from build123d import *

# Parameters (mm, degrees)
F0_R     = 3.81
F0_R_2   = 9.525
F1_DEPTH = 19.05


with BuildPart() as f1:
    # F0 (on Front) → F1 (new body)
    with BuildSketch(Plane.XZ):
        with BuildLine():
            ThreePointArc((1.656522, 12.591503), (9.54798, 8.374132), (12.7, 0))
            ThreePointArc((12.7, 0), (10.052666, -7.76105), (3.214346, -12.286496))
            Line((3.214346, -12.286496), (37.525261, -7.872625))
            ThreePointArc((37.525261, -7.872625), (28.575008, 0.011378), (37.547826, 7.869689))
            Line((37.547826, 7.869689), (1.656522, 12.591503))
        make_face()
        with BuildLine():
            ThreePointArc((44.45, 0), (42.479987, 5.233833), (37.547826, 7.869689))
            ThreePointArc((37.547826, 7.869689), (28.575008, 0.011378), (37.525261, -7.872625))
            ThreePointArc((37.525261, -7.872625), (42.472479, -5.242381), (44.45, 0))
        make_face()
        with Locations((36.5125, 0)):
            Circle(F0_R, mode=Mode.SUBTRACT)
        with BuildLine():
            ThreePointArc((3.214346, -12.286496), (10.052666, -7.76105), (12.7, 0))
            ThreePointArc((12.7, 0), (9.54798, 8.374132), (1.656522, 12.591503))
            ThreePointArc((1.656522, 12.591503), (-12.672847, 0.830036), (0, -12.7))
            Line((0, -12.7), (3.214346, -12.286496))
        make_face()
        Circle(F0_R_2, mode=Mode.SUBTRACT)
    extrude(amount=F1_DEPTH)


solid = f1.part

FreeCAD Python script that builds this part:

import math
import FreeCAD as App
import Part
import Sketcher

V = App.Vector
Q = App.Units.Quantity

doc = App.newDocument("Part")
body = doc.addObject("PartDesign::Body", "Body")

sketch1 = body.newObject("Sketcher::SketchObject", "Sketch")
sketch1.AttachmentSupport = (doc.getObject("XZ_Plane"), [""])
sketch1.MapMode = "FlatFace"
sketch1.addGeometry(Part.LineSegment(V(37.547826, 7.869689, 0), V(1.656522, 12.591503, 0)), False)
sketch1.addGeometry(Part.ArcOfCircle(Part.Circle(V(0, 0, 0), V(0, 0, 1), 12.7), math.radians(82.505281), math.radians(270.000001)), False)
sketch1.addGeometry(Part.LineSegment(V(0, -12.7, 0), V(3.214346, -12.286496, 0)), False)
sketch1.addGeometry(Part.LineSegment(V(3.214346, -12.286496, 0), V(37.525261, -7.872625, 0)), False)
sketch1.addGeometry(Part.ArcOfCircle(Part.Circle(V(36.5125, 0, 0), V(0, 0, 1), 7.9375), math.radians(-82.669538), math.radians(0.000001)), False)
sketch1.addGeometry(Part.ArcOfCircle(Part.Circle(V(36.512501, 0.000001, 0), V(0, 0, 1), 7.937499), math.radians(-0.000004), math.radians(82.505288)), False)
sketch1.addGeometry(Part.Circle(V(0, 0, 0), V(0, 0, 1), 9.525), False)
sketch1.addGeometry(Part.Circle(V(36.5125, 0, 0), V(0, 0, 1), 3.81), False)
sketch1.addConstraint(Sketcher.Constraint("Tangent", 0, 2, 1, 1))
sketch1.addConstraint(Sketcher.Constraint("Coincident", 1, 2, 2, 1))
sketch1.addConstraint(Sketcher.Constraint("Coincident", 2, 2, 3, 1))
sketch1.addConstraint(Sketcher.Constraint("Tangent", 3, 2, 4, 1))
sketch1.addConstraint(Sketcher.Constraint("Tangent", 4, 2, 5, 1))
sketch1.addConstraint(Sketcher.Constraint("Tangent", 5, 2, 0, 1))
sketch1.addConstraint(Sketcher.Constraint("Coincident", 1, 3, -1, 1))
sketch1.addConstraint(Sketcher.Constraint("Coincident", 6, 3, -1, 1))
sketch1.addConstraint(Sketcher.Constraint("Coincident", 7, 3, 4, 3))
sketch1.addConstraint(Sketcher.Constraint("Equal", 4, 5))
sketch1.addConstraint(Sketcher.Constraint("PointOnObject", 4, 3, -1))
sketch1.addConstraint(Sketcher.Constraint("PointOnObject", 1, 2, -2))
sketch1.addConstraint(Sketcher.Constraint("PointOnObject", 4, 2, -1))
sketch1.addConstraint(Sketcher.Constraint("Parallel", 2, 3))
sketch1.addConstraint(Sketcher.Constraint("Diameter", 7, Q("0.3 in")))
sketch1.addConstraint(Sketcher.Constraint("Radius", 1, Q("0.5 in")))
sketch1.addConstraint(Sketcher.Constraint("Diameter", 6, Q("0.75 in")))
sketch1.addConstraint(Sketcher.Constraint("Radius", 4, Q("0.3125 in")))
sketch1.addConstraint(Sketcher.Constraint("DistanceX", -1, 1, 4, 2, Q("1.75 in")))
sketch1.addConstraint(Sketcher.Constraint("DistanceY", 2, 2, 0, 2, Q("24.877999 mm")))
pad1 = body.newObject("PartDesign::Pad", "Pad")
pad1.Profile = sketch1
pad1.Length = Q("0.75 in")

doc.recompute()
